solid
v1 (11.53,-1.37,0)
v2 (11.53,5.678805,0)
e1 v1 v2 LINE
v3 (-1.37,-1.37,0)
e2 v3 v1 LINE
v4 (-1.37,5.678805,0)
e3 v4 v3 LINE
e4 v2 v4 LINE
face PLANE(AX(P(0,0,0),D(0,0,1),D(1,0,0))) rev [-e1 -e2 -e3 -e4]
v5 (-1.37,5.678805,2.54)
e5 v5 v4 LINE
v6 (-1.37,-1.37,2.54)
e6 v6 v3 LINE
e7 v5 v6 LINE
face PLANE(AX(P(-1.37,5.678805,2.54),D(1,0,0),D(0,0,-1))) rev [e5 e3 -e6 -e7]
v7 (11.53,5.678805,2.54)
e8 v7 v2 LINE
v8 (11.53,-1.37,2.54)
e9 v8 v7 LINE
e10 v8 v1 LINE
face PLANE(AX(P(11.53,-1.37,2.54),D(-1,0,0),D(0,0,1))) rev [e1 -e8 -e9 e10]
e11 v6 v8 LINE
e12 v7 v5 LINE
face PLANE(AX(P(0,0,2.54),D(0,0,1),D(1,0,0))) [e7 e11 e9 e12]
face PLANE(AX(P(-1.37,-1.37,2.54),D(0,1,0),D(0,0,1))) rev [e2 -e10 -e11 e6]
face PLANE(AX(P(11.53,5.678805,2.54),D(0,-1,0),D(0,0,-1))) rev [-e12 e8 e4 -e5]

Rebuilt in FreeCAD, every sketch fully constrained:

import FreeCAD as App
import Part
import Sketcher
from FreeCAD import Vector
Q = App.Units.Quantity


def add_polygon(sketch, points):
    """Adds a closed chain of lines whose ends are joined by coincident constraints."""
    first, n = sketch.GeometryCount, len(points)
    for a, b in zip(points, points[1:] + points[:1]):
        sketch.addGeometry(Part.LineSegment(App.Vector(*a, 0), App.Vector(*b, 0)), False)
    for i in range(n):
        sketch.addConstraint(Sketcher.Constraint("Coincident", first + i, 2, first + (i + 1) % n, 1))

doc = App.newDocument("Part")
params = doc.addObject("Spreadsheet::Sheet", "Params")
for row, (alias, value) in enumerate([
    ("sketch1_width", "12.9 mm"),
    ("pad1_length", "2.54 mm"),
], start=1):
    params.set(f"A{row}", alias)
    params.set(f"B{row}", "=" + value)
    params.setAlias(f"B{row}", alias)

body = doc.addObject("PartDesign::Body", "Body")

# Sketch on XY plane
sketch1 = body.newObject("Sketcher::SketchObject", "Sketch")
sketch1.AttachmentSupport = (doc.getObject("XY_Plane"), [""])
sketch1.MapMode = "FlatFace"
add_polygon(sketch1, [(-1, 6), (-1, -1), (12, -1), (12, 6)])  # lines 0-3
sketch1.addConstraint([
    Sketcher.Constraint("Vertical", 0),
    Sketcher.Constraint("Horizontal", 1),
    Sketcher.Constraint("Vertical", 2),
    Sketcher.Constraint("Horizontal", 3),
    Sketcher.Constraint("DistanceX", 1, 1, 1, 2, Q("12.9 mm")),
    Sketcher.Constraint("DistanceX", 0, 2, -1, 1, Q("1.37 mm")),
    Sketcher.Constraint("DistanceY", 0, 2, -1, 1, Q("1.37 mm")),
    Sketcher.Constraint("DistanceY", 0, 2, 0, 1, Q("7.048805 mm")),
])
sketch1.setExpression("Constraints[8]", "Params.sketch1_width")
pad1 = body.newObject("PartDesign::Pad", "Pad")
pad1.Profile = sketch1
pad1.setExpression("Length", "Params.pad1_length")

doc.recompute()
